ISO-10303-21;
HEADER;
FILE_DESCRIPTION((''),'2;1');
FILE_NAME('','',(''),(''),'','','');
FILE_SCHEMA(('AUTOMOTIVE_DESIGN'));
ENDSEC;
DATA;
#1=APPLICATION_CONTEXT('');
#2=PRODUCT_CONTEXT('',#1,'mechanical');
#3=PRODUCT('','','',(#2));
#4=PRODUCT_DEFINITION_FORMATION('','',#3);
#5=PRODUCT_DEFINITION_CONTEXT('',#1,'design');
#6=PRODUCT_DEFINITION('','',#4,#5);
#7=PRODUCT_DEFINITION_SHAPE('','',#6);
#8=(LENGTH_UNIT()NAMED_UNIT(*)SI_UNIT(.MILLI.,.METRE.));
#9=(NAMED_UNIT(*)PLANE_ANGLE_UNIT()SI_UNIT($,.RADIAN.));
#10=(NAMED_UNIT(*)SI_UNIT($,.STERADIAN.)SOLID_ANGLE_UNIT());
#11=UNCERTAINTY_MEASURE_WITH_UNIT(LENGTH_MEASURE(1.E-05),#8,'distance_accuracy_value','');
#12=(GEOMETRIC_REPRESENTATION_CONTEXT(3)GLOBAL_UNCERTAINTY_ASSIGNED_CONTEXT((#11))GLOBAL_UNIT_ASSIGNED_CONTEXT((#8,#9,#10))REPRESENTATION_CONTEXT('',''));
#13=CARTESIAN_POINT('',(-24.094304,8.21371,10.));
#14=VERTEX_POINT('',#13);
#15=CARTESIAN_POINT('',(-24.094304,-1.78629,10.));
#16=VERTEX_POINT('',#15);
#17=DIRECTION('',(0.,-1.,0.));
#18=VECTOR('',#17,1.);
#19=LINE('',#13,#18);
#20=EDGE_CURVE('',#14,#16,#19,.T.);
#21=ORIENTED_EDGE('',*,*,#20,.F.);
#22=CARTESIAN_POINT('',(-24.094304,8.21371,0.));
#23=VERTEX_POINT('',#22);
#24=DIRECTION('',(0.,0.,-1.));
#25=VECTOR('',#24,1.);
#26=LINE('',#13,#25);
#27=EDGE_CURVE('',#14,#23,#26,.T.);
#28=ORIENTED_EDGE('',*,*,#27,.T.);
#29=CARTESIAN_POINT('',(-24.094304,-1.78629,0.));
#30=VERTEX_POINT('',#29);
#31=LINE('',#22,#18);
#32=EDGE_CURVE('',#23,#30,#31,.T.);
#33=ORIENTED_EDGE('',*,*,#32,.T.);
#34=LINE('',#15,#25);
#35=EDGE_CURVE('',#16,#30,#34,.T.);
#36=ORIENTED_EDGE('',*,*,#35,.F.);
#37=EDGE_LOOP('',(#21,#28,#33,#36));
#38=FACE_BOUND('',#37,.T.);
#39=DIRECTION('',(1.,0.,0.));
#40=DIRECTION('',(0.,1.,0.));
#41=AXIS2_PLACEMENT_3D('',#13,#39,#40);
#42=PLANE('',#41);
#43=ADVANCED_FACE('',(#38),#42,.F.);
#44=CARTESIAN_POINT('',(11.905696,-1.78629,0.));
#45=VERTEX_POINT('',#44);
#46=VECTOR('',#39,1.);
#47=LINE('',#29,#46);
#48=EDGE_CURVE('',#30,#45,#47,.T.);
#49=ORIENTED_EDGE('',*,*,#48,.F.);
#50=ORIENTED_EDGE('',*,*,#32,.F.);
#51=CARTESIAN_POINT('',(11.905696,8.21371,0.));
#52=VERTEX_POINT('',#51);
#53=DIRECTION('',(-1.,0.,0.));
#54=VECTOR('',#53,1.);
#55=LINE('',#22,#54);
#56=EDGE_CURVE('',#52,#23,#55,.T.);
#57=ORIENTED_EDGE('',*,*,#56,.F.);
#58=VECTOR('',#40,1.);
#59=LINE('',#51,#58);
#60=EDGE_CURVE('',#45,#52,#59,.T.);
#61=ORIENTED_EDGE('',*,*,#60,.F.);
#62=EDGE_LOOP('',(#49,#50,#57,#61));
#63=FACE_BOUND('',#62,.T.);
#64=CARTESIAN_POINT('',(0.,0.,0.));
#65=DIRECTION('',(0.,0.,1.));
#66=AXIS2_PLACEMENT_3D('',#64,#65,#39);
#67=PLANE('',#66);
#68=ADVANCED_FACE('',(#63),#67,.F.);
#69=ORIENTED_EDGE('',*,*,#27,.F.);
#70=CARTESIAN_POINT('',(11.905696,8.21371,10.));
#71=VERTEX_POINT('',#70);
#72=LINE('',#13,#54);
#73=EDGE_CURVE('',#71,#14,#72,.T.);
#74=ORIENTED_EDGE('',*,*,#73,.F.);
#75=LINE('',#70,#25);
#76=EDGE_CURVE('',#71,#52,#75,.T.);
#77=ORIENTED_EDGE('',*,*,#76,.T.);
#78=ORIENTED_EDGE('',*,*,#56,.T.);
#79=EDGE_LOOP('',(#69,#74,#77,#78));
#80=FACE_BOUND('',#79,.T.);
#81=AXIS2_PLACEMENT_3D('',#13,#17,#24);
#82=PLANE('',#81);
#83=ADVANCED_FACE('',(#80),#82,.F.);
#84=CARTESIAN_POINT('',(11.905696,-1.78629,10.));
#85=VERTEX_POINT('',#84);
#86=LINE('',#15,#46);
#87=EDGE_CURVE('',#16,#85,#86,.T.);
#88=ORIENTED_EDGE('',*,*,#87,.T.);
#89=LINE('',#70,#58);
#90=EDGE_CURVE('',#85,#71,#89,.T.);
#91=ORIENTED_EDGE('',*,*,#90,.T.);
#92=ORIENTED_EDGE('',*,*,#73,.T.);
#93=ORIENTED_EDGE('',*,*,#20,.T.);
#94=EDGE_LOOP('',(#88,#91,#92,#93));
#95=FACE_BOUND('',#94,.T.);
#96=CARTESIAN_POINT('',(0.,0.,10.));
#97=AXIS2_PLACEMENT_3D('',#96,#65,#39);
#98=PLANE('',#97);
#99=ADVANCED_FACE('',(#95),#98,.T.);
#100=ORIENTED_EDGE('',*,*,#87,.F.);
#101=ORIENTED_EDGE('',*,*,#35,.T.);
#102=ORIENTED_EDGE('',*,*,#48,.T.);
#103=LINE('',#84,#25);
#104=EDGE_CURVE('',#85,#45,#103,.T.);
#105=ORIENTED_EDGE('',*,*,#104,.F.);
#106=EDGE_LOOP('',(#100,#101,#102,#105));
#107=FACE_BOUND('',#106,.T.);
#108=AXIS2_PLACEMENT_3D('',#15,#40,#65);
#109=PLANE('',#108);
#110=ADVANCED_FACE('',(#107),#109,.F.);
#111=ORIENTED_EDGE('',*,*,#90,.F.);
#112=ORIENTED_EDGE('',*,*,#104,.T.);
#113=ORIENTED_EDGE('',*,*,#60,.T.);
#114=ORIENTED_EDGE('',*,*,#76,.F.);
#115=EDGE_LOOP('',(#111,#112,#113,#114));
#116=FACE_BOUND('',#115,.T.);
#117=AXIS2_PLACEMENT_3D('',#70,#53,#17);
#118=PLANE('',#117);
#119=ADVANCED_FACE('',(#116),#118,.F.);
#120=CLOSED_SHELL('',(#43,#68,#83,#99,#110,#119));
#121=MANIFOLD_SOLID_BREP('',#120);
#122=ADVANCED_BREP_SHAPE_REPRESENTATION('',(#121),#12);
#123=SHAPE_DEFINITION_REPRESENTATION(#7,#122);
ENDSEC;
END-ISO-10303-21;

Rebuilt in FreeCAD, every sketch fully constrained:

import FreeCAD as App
import Part
import Sketcher
from FreeCAD import Vector
Q = App.Units.Quantity

doc = App.newDocument("Part")
body = doc.addObject("PartDesign::Body", "Body")

sketch1 = body.newObject("Sketcher::SketchObject", "Sketch")
sketch1.AttachmentSupport = (doc.getObject("XY_Plane"), [""])
sketch1.MapMode = "FlatFace"
sketch1.addGeometry(Part.LineSegment(Vector(-24, 8, 0), Vector(-24, -2, 0)), False)
sketch1.addGeometry(Part.LineSegment(Vector(-24, -2, 0), Vector(12, -2, 0)), False)
sketch1.addGeometry(Part.LineSegment(Vector(12, -2, 0), Vector(12, 8, 0)), False)
sketch1.addGeometry(Part.LineSegment(Vector(12, 8, 0), Vector(-24, 8, 0)), False)
sketch1.addConstraint(Sketcher.Constraint("Coincident", 0, 2, 1, 1))
sketch1.addConstraint(Sketcher.Constraint("Coincident", 1, 2, 2, 1))
sketch1.addConstraint(Sketcher.Constraint("Coincident", 2, 2, 3, 1))
sketch1.addConstraint(Sketcher.Constraint("Coincident", 3, 2, 0, 1))
sketch1.addConstraint(Sketcher.Constraint("Vertical", 0))
sketch1.addConstraint(Sketcher.Constraint("Horizontal", 1))
sketch1.addConstraint(Sketcher.Constraint("Vertical", 2))
sketch1.addConstraint(Sketcher.Constraint("Horizontal", 3))
sketch1.addConstraint(Sketcher.Constraint("DistanceX", 1, 1, 1, 2, Q("36 mm")))
sketch1.addConstraint(Sketcher.Constraint("DistanceY", 0, 2, 0, 1, Q("10 mm")))
sketch1.addConstraint(Sketcher.Constraint("DistanceY", 0, 2, -1, 1, Q("1.78629 mm")))
sketch1.addConstraint(Sketcher.Constraint("DistanceX", 0, 2, -1, 1, Q("24.094304 mm")))
pad1 = body.newObject("PartDesign::Pad", "Pad")
pad1.Profile = sketch1
pad1.Length = 10

doc.recompute()
